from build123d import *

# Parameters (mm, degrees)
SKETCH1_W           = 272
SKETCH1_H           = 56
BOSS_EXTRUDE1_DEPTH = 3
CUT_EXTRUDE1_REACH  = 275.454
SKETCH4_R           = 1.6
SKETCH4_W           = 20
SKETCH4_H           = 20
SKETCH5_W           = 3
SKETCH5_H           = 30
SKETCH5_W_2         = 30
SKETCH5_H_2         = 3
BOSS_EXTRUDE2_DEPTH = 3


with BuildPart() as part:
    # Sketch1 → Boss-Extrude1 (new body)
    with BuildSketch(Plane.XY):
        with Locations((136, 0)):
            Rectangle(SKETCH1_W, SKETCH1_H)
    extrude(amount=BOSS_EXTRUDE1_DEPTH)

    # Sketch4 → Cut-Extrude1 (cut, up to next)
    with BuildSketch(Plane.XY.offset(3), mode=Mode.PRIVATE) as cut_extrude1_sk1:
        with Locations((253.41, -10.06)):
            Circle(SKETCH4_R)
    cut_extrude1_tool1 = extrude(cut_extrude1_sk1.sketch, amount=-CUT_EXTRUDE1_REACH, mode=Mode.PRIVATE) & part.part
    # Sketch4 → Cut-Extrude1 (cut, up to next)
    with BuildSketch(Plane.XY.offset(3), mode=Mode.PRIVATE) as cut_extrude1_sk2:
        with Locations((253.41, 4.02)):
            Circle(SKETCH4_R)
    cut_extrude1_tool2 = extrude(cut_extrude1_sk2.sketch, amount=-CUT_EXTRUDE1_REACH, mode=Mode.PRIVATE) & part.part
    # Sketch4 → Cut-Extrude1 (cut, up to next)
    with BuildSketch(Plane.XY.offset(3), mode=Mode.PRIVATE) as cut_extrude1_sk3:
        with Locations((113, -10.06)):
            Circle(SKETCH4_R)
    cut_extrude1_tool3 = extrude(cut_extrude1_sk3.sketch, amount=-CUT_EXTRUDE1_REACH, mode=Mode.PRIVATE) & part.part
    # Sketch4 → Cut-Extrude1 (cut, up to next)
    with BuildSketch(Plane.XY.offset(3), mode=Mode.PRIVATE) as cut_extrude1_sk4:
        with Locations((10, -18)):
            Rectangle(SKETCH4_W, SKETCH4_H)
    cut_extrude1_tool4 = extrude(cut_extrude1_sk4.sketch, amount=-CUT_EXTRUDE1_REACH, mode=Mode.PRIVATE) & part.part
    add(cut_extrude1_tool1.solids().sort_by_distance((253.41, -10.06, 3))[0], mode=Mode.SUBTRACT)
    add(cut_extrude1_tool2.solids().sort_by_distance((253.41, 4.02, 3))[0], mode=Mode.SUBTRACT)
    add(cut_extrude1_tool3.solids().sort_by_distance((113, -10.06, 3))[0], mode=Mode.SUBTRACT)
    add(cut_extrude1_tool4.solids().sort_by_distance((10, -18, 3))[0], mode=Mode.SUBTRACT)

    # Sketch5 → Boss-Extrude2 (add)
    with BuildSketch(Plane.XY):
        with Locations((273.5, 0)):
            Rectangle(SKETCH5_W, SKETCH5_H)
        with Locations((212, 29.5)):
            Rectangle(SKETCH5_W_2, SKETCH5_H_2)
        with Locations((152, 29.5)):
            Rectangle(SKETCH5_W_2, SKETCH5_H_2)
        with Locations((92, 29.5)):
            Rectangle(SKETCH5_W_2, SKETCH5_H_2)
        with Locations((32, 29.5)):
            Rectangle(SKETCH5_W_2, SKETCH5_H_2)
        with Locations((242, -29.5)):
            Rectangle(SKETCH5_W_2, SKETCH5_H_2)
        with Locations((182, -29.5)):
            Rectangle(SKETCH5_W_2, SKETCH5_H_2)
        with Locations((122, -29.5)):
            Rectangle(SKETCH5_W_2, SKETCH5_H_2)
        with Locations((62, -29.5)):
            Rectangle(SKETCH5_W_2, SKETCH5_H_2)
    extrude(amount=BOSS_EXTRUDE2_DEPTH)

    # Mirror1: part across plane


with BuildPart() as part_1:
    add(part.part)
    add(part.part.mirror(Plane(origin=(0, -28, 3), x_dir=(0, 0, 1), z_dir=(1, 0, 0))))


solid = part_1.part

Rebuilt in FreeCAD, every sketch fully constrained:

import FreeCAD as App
import Part
import Sketcher
Q = App.Units.Quantity

doc = App.newDocument("Part")
params = doc.addObject("Spreadsheet::Sheet", "Params")
for row, (alias, value) in enumerate([
    ("sketch1_width", "272 mm"),
    ("sketch1_height", "56 mm"),
    ("pad1_length", "3 mm"),
    ("sketch2_diameter", "3.2 mm"),
    ("sketch3_diameter", "3.2 mm"),
    ("sketch4_diameter", "3.2 mm"),
    ("sketch5_width", "20 mm"),
    ("sketch6_width", "3 mm"),
    ("sketch6_width2", "30 mm"),
    ("pad2_length", "3 mm"),
], start=1):
    params.set(f"A{row}", alias)
    params.set(f"B{row}", "=" + value)
    params.setAlias(f"B{row}", alias)

body = doc.addObject("PartDesign::Body", "Body")

sketch1 = body.newObject("Sketcher::SketchObject", "Sketch")
sketch1.AttachmentSupport = (doc.getObject("XY_Plane"), [""])
sketch1.MapMode = "FlatFace"
sketch1.addGeometry([
    Part.LineSegment(App.Vector(0, 28, 0), App.Vector(0, -28, 0)),
    Part.LineSegment(App.Vector(0, -28, 0), App.Vector(272, -28, 0)),
    Part.LineSegment(App.Vector(272, -28, 0), App.Vector(272, 28, 0)),
    Part.LineSegment(App.Vector(272, 28, 0), App.Vector(0, 28, 0)),
], False)
sketch1.addConstraint([
    Sketcher.Constraint("Coincident", 0, 2, 1, 1),
    Sketcher.Constraint("Coincident", 1, 2, 2, 1),
    Sketcher.Constraint("Coincident", 2, 2, 3, 1),
    Sketcher.Constraint("Coincident", 3, 2, 0, 1),
    Sketcher.Constraint("Vertical", 0),
    Sketcher.Constraint("Horizontal", 1),
    Sketcher.Constraint("Vertical", 2),
    Sketcher.Constraint("Horizontal", 3),
    Sketcher.Constraint("Symmetric", 0, 2, 3, 2, -1, 1),
    Sketcher.Constraint("DistanceX", 1, 1, 1, 2, Q("272 mm")),
    Sketcher.Constraint("DistanceY", 0, 2, 0, 1, Q("56 mm")),
])
sketch1.setExpression("Constraints[9]", "Params.sketch1_width")
sketch1.setExpression("Constraints[10]", "Params.sketch1_height")
pad1 = body.newObject("PartDesign::Pad", "Pad")
pad1.Profile = sketch1
pad1.setExpression("Length", "Params.pad1_length")

sketch2 = body.newObject("Sketcher::SketchObject", "Sketch001")
sketch2.AttachmentSupport = (doc.getObject("XY_Plane"), [""])
sketch2.MapMode = "FlatFace"
sketch2.AttachmentOffset = App.Placement(App.Vector(0, 0, 3), App.Rotation())
sketch2.addGeometry(Part.Circle(App.Vector(253.4, -10.1, 0), App.Vector(0, 0, 1), 1.6), False)
sketch2.addConstraint([
    Sketcher.Constraint("Diameter", 0, Q("3.2 mm")),
    Sketcher.Constraint("DistanceX", -1, 1, 0, 3, Q("253.41 mm")),
    Sketcher.Constraint("DistanceY", 0, 3, -1, 1, Q("10.06 mm")),
])
sketch2.setExpression("Constraints[0]", "Params.sketch2_diameter")
pocket1 = body.newObject("PartDesign::Pocket", "Pocket")
pocket1.Profile = sketch2
pocket1.Type = "UpToFirst"

sketch3 = body.newObject("Sketcher::SketchObject", "Sketch002")
sketch3.AttachmentSupport = (doc.getObject("XY_Plane"), [""])
sketch3.MapMode = "FlatFace"
sketch3.AttachmentOffset = App.Placement(App.Vector(0, 0, 3), App.Rotation())
sketch3.addGeometry(Part.Circle(App.Vector(253.4, 4, 0), App.Vector(0, 0, 1), 1.6), False)
sketch3.addConstraint([
    Sketcher.Constraint("Diameter", 0, Q("3.2 mm")),
    Sketcher.Constraint("DistanceX", -1, 1, 0, 3, Q("253.41 mm")),
    Sketcher.Constraint("DistanceY", -1, 1, 0, 3, Q("4.02 mm")),
])
sketch3.setExpression("Constraints[0]", "Params.sketch3_diameter")
pocket2 = body.newObject("PartDesign::Pocket", "Pocket001")
pocket2.Profile = sketch3
pocket2.Type = "UpToFirst"

sketch4 = body.newObject("Sketcher::SketchObject", "Sketch003")
sketch4.AttachmentSupport = (doc.getObject("XY_Plane"), [""])
sketch4.MapMode = "FlatFace"
sketch4.AttachmentOffset = App.Placement(App.Vector(0, 0, 3), App.Rotation())
sketch4.addGeometry(Part.Circle(App.Vector(113, -10.1, 0), App.Vector(0, 0, 1), 1.6), False)
sketch4.addConstraint([
    Sketcher.Constraint("Diameter", 0, Q("3.2 mm")),
    Sketcher.Constraint("DistanceX", -1, 1, 0, 3, Q("113 mm")),
    Sketcher.Constraint("DistanceY", 0, 3, -1, 1, Q("10.06 mm")),
])
sketch4.setExpression("Constraints[0]", "Params.sketch4_diameter")
pocket3 = body.newObject("PartDesign::Pocket", "Pocket002")
pocket3.Profile = sketch4
pocket3.Type = "UpToFirst"

sketch5 = body.newObject("Sketcher::SketchObject", "Sketch004")
sketch5.AttachmentSupport = (doc.getObject("XY_Plane"), [""])
sketch5.MapMode = "FlatFace"
sketch5.AttachmentOffset = App.Placement(App.Vector(0, 0, 3), App.Rotation())
sketch5.addGeometry([
    Part.LineSegment(App.Vector(0, -8, 0), App.Vector(0, -28, 0)),
    Part.LineSegment(App.Vector(0, -28, 0), App.Vector(20, -28, 0)),
    Part.LineSegment(App.Vector(20, -28, 0), App.Vector(20, -8, 0)),
    Part.LineSegment(App.Vector(20, -8, 0), App.Vector(0, -8, 0)),
], False)
sketch5.addConstraint([
    Sketcher.Constraint("Coincident", 0, 2, 1, 1),
    Sketcher.Constraint("Coincident", 1, 2, 2, 1),
    Sketcher.Constraint("Coincident", 2, 2, 3, 1),
    Sketcher.Constraint("Coincident", 3, 2, 0, 1),
    Sketcher.Constraint("Vertical", 0),
    Sketcher.Constraint("Horizontal", 1),
    Sketcher.Constraint("Vertical", 2),
    Sketcher.Constraint("Horizontal", 3),
    Sketcher.Constraint("PointOnObject", 0, 2, -2),
    Sketcher.Constraint("Equal", 3, 0),
    Sketcher.Constraint("DistanceX", 1, 1, 1, 2, Q("20 mm")),
    Sketcher.Constraint("DistanceY", 0, 2, -1, 1, Q("28 mm")),
])
sketch5.setExpression("Constraints[10]", "Params.sketch5_width")
pocket4 = body.newObject("PartDesign::Pocket", "Pocket003")
pocket4.Profile = sketch5
pocket4.Type = "UpToFirst"

sketch6 = body.newObject("Sketcher::SketchObject", "Sketch005")
sketch6.AttachmentSupport = (doc.getObject("XY_Plane"), [""])
sketch6.MapMode = "FlatFace"
sketch6.addGeometry([
    Part.LineSegment(App.Vector(272, 15, 0), App.Vector(272, -15, 0)),
    Part.LineSegment(App.Vector(272, -15, 0), App.Vector(275, -15, 0)),
    Part.LineSegment(App.Vector(275, -15, 0), App.Vector(275, 15, 0)),
    Part.LineSegment(App.Vector(275, 15, 0), App.Vector(272, 15, 0)),
    Part.LineSegment(App.Vector(197, 31, 0), App.Vector(197, 28, 0)),
    Part.LineSegment(App.Vector(197, 28, 0), App.Vector(227, 28, 0)),
    Part.LineSegment(App.Vector(227, 28, 0), App.Vector(227, 31, 0)),
    Part.LineSegment(App.Vector(227, 31, 0), App.Vector(197, 31, 0)),
    Part.LineSegment(App.Vector(137, 31, 0), App.Vector(137, 28, 0)),
    Part.LineSegment(App.Vector(137, 28, 0), App.Vector(167, 28, 0)),
    Part.LineSegment(App.Vector(167, 28, 0), App.Vector(167, 31, 0)),
    Part.LineSegment(App.Vector(167, 31, 0), App.Vector(137, 31, 0)),
    Part.LineSegment(App.Vector(77, 31, 0), App.Vector(77, 28, 0)),
    Part.LineSegment(App.Vector(77, 28, 0), App.Vector(107, 28, 0)),
    Part.LineSegment(App.Vector(107, 28, 0), App.Vector(107, 31, 0)),
    Part.LineSegment(App.Vector(107, 31, 0), App.Vector(77, 31, 0)),
    Part.LineSegment(App.Vector(17, 31, 0), App.Vector(17, 28, 0)),
    Part.LineSegment(App.Vector(17, 28, 0), App.Vector(47, 28, 0)),
    Part.LineSegment(App.Vector(47, 28, 0), App.Vector(47, 31, 0)),
    Part.LineSegment(App.Vector(47, 31, 0), App.Vector(17, 31, 0)),
    Part.LineSegment(App.Vector(227, -28, 0), App.Vector(227, -31, 0)),
    Part.LineSegment(App.Vector(227, -31, 0), App.Vector(257, -31, 0)),
    Part.LineSegment(App.Vector(257, -31, 0), App.Vector(257, -28, 0)),
    Part.LineSegment(App.Vector(257, -28, 0), App.Vector(227, -28, 0)),
    Part.LineSegment(App.Vector(167, -28, 0), App.Vector(167, -31, 0)),
    Part.LineSegment(App.Vector(167, -31, 0), App.Vector(197, -31, 0)),
    Part.LineSegment(App.Vector(197, -31, 0), App.Vector(197, -28, 0)),
    Part.LineSegment(App.Vector(197, -28, 0), App.Vector(167, -28, 0)),
    Part.LineSegment(App.Vector(107, -28, 0), App.Vector(107, -31, 0)),
    Part.LineSegment(App.Vector(107, -31, 0), App.Vector(137, -31, 0)),
    Part.LineSegment(App.Vector(137, -31, 0), App.Vector(137, -28, 0)),
    Part.LineSegment(App.Vector(137, -28, 0), App.Vector(107, -28, 0)),
    Part.LineSegment(App.Vector(47, -28, 0), App.Vector(47, -31, 0)),
    Part.LineSegment(App.Vector(47, -31, 0), App.Vector(77, -31, 0)),
    Part.LineSegment(App.Vector(77, -31, 0), App.Vector(77, -28, 0)),
    Part.LineSegment(App.Vector(77, -28, 0), App.Vector(47, -28, 0)),
], False)
sketch6.addConstraint([
    Sketcher.Constraint("Coincident", 0, 2, 1, 1),
    Sketcher.Constraint("Coincident", 1, 2, 2, 1),
    Sketcher.Constraint("Coincident", 2, 2, 3, 1),
    Sketcher.Constraint("Coincident", 3, 2, 0, 1),
    Sketcher.Constraint("Coincident", 4, 2, 5, 1),
    Sketcher.Constraint("Coincident", 5, 2, 6, 1),
    Sketcher.Constraint("Coincident", 6, 2, 7, 1),
    Sketcher.Constraint("Coincident", 7, 2, 4, 1),
    Sketcher.Constraint("Coincident", 8, 2, 9, 1),
    Sketcher.Constraint("Coincident", 9, 2, 10, 1),
    Sketcher.Constraint("Coincident", 10, 2, 11, 1),
    Sketcher.Constraint("Coincident", 11, 2, 8, 1),
    Sketcher.Constraint("Coincident", 12, 2, 13, 1),
    Sketcher.Constraint("Coincident", 13, 2, 14, 1),
    Sketcher.Constraint("Coincident", 14, 2, 15, 1),
    Sketcher.Constraint("Coincident", 15, 2, 12, 1),
    Sketcher.Constraint("Coincident", 16, 2, 17, 1),
    Sketcher.Constraint("Coincident", 17, 2, 18, 1),
    Sketcher.Constraint("Coincident", 18, 2, 19, 1),
    Sketcher.Constraint("Coincident", 19, 2, 16, 1),
    Sketcher.Constraint("Coincident", 20, 2, 21, 1),
    Sketcher.Constraint("Coincident", 21, 2, 22, 1),
    Sketcher.Constraint("Coincident", 22, 2, 23, 1),
    Sketcher.Constraint("Coincident", 23, 2, 20, 1),
    Sketcher.Constraint("Coincident", 24, 2, 25, 1),
    Sketcher.Constraint("Coincident", 25, 2, 26, 1),
    Sketcher.Constraint("Coincident", 26, 2, 27, 1),
    Sketcher.Constraint("Coincident", 27, 2, 24, 1),
    Sketcher.Constraint("Coincident", 28, 2, 29, 1),
    Sketcher.Constraint("Coincident", 29, 2, 30, 1),
    Sketcher.Constraint("Coincident", 30, 2, 31, 1),
    Sketcher.Constraint("Coincident", 31, 2, 28, 1),
    Sketcher.Constraint("Coincident", 32, 2, 33, 1),
    Sketcher.Constraint("Coincident", 33, 2, 34, 1),
    Sketcher.Constraint("Coincident", 34, 2, 35, 1),
    Sketcher.Constraint("Coincident", 35, 2, 32, 1),
    Sketcher.Constraint("Vertical", 0),
    Sketcher.Constraint("Horizontal", 1),
    Sketcher.Constraint("Vertical", 2),
    Sketcher.Constraint("Horizontal", 3),
    Sketcher.Constraint("Vertical", 4),
    Sketcher.Constraint("Horizontal", 5),
    Sketcher.Constraint("Vertical", 6),
    Sketcher.Constraint("Horizontal", 7),
    Sketcher.Constraint("Vertical", 8),
    Sketcher.Constraint("Horizontal", 9),
    Sketcher.Constraint("Vertical", 10),
    Sketcher.Constraint("Horizontal", 11),
    Sketcher.Constraint("Vertical", 12),
    Sketcher.Constraint("Horizontal", 13),
    Sketcher.Constraint("Vertical", 14),
    Sketcher.Constraint("Horizontal", 15),
    Sketcher.Constraint("Vertical", 16),
    Sketcher.Constraint("Horizontal", 17),
    Sketcher.Constraint("Vertical", 18),
    Sketcher.Constraint("Horizontal", 19),
    Sketcher.Constraint("Vertical", 20),
    Sketcher.Constraint("Horizontal", 21),
    Sketcher.Constraint("Vertical", 22),
    Sketcher.Constraint("Horizontal", 23),
    Sketcher.Constraint("Vertical", 24),
    Sketcher.Constraint("Horizontal", 25),
    Sketcher.Constraint("Vertical", 26),
    Sketcher.Constraint("Horizontal", 27),
    Sketcher.Constraint("Vertical", 28),
    Sketcher.Constraint("Horizontal", 29),
    Sketcher.Constraint("Vertical", 30),
    Sketcher.Constraint("Horizontal", 31),
    Sketcher.Constraint("Vertical", 32),
    Sketcher.Constraint("Horizontal", 33),
    Sketcher.Constraint("Vertical", 34),
    Sketcher.Constraint("Horizontal", 35),
    Sketcher.Constraint("Symmetric", 6, 2, 20, 2, -1),
    Sketcher.Constraint("Symmetric", 10, 2, 24, 2, -1),
    Sketcher.Constraint("Symmetric", 7, 2, 25, 2, -1),
    Sketcher.Constraint("Symmetric", 14, 2, 28, 2, -1),
    Sketcher.Constraint("Symmetric", 11, 2, 29, 2, -1),
    Sketcher.Constraint("Symmetric", 18, 2, 32, 2, -1),
    Sketcher.Constraint("Symmetric", 15, 2, 33, 2, -1),
    Sketcher.Constraint("Horizontal", 5, 2, 8, 2),
    Sketcher.Constraint("Horizontal", 9, 2, 12, 2),
    Sketcher.Constraint("Horizontal", 13, 2, 16, 2),
    Sketcher.Constraint("Horizontal", 23, 2, 26, 2),
    Sketcher.Constraint("Horizontal", 27, 2, 30, 2),
    Sketcher.Constraint("Horizontal", 31, 2, 34, 2),
    Sketcher.Constraint("Equal", 7, 9),
    Sketcher.Constraint("Equal", 11, 13),
    Sketcher.Constraint("Equal", 15, 17),
    Sketcher.Constraint("Equal", 19, 21),
    Sketcher.Constraint("Equal", 23, 25),
    Sketcher.Constraint("Equal", 27, 29),
    Sketcher.Constraint("Equal", 31, 33),
    Sketcher.Constraint("Equal", 35, 0),
    Sketcher.Constraint("Equal", 3, 4),
    Sketcher.Constraint("Equal", 18, 20),
    Sketcher.Constraint("DistanceX", 1, 1, 1, 2, Q("3 mm")),
    Sketcher.Constraint("DistanceX", 5, 1, 5, 2, Q("30 mm")),
    Sketcher.Constraint("DistanceX", -1, 1, 0, 2, Q("272 mm")),
    Sketcher.Constraint("DistanceY", 0, 2, -1, 1, Q("15 mm")),
    Sketcher.Constraint("DistanceX", -1, 1, 4, 2, Q("197 mm")),
    Sketcher.Constraint("DistanceY", -1, 1, 4, 2, Q("28 mm")),
])
sketch6.setExpression("Constraints[95]", "Params.sketch6_width")
sketch6.setExpression("Constraints[96]", "Params.sketch6_width2")
pad2 = body.newObject("PartDesign::Pad", "Pad001")
pad2.Profile = sketch6
pad2.setExpression("Length", "Params.pad2_length")
body2 = doc.addObject("PartDesign::Body", "Body001")
doc.recompute()

body2.BaseFeature = body
doc.recompute()

mirroring = doc.addObject("Part::Mirroring", "Mirroring")
mirroring.Source = body
mirroring.Base = App.Vector(0, -28, 3)
mirroring.Normal = App.Vector(1, 0, 0)
body3 = doc.addObject("PartDesign::Body", "Body002")
body3.BaseFeature = mirroring
boolean = body2.newObject("PartDesign::Boolean", "Boolean")
boolean.Type = "Fuse"
boolean.addObjects([body3])
doc.recompute()
mirroring.Visibility = False

doc.recompute()
